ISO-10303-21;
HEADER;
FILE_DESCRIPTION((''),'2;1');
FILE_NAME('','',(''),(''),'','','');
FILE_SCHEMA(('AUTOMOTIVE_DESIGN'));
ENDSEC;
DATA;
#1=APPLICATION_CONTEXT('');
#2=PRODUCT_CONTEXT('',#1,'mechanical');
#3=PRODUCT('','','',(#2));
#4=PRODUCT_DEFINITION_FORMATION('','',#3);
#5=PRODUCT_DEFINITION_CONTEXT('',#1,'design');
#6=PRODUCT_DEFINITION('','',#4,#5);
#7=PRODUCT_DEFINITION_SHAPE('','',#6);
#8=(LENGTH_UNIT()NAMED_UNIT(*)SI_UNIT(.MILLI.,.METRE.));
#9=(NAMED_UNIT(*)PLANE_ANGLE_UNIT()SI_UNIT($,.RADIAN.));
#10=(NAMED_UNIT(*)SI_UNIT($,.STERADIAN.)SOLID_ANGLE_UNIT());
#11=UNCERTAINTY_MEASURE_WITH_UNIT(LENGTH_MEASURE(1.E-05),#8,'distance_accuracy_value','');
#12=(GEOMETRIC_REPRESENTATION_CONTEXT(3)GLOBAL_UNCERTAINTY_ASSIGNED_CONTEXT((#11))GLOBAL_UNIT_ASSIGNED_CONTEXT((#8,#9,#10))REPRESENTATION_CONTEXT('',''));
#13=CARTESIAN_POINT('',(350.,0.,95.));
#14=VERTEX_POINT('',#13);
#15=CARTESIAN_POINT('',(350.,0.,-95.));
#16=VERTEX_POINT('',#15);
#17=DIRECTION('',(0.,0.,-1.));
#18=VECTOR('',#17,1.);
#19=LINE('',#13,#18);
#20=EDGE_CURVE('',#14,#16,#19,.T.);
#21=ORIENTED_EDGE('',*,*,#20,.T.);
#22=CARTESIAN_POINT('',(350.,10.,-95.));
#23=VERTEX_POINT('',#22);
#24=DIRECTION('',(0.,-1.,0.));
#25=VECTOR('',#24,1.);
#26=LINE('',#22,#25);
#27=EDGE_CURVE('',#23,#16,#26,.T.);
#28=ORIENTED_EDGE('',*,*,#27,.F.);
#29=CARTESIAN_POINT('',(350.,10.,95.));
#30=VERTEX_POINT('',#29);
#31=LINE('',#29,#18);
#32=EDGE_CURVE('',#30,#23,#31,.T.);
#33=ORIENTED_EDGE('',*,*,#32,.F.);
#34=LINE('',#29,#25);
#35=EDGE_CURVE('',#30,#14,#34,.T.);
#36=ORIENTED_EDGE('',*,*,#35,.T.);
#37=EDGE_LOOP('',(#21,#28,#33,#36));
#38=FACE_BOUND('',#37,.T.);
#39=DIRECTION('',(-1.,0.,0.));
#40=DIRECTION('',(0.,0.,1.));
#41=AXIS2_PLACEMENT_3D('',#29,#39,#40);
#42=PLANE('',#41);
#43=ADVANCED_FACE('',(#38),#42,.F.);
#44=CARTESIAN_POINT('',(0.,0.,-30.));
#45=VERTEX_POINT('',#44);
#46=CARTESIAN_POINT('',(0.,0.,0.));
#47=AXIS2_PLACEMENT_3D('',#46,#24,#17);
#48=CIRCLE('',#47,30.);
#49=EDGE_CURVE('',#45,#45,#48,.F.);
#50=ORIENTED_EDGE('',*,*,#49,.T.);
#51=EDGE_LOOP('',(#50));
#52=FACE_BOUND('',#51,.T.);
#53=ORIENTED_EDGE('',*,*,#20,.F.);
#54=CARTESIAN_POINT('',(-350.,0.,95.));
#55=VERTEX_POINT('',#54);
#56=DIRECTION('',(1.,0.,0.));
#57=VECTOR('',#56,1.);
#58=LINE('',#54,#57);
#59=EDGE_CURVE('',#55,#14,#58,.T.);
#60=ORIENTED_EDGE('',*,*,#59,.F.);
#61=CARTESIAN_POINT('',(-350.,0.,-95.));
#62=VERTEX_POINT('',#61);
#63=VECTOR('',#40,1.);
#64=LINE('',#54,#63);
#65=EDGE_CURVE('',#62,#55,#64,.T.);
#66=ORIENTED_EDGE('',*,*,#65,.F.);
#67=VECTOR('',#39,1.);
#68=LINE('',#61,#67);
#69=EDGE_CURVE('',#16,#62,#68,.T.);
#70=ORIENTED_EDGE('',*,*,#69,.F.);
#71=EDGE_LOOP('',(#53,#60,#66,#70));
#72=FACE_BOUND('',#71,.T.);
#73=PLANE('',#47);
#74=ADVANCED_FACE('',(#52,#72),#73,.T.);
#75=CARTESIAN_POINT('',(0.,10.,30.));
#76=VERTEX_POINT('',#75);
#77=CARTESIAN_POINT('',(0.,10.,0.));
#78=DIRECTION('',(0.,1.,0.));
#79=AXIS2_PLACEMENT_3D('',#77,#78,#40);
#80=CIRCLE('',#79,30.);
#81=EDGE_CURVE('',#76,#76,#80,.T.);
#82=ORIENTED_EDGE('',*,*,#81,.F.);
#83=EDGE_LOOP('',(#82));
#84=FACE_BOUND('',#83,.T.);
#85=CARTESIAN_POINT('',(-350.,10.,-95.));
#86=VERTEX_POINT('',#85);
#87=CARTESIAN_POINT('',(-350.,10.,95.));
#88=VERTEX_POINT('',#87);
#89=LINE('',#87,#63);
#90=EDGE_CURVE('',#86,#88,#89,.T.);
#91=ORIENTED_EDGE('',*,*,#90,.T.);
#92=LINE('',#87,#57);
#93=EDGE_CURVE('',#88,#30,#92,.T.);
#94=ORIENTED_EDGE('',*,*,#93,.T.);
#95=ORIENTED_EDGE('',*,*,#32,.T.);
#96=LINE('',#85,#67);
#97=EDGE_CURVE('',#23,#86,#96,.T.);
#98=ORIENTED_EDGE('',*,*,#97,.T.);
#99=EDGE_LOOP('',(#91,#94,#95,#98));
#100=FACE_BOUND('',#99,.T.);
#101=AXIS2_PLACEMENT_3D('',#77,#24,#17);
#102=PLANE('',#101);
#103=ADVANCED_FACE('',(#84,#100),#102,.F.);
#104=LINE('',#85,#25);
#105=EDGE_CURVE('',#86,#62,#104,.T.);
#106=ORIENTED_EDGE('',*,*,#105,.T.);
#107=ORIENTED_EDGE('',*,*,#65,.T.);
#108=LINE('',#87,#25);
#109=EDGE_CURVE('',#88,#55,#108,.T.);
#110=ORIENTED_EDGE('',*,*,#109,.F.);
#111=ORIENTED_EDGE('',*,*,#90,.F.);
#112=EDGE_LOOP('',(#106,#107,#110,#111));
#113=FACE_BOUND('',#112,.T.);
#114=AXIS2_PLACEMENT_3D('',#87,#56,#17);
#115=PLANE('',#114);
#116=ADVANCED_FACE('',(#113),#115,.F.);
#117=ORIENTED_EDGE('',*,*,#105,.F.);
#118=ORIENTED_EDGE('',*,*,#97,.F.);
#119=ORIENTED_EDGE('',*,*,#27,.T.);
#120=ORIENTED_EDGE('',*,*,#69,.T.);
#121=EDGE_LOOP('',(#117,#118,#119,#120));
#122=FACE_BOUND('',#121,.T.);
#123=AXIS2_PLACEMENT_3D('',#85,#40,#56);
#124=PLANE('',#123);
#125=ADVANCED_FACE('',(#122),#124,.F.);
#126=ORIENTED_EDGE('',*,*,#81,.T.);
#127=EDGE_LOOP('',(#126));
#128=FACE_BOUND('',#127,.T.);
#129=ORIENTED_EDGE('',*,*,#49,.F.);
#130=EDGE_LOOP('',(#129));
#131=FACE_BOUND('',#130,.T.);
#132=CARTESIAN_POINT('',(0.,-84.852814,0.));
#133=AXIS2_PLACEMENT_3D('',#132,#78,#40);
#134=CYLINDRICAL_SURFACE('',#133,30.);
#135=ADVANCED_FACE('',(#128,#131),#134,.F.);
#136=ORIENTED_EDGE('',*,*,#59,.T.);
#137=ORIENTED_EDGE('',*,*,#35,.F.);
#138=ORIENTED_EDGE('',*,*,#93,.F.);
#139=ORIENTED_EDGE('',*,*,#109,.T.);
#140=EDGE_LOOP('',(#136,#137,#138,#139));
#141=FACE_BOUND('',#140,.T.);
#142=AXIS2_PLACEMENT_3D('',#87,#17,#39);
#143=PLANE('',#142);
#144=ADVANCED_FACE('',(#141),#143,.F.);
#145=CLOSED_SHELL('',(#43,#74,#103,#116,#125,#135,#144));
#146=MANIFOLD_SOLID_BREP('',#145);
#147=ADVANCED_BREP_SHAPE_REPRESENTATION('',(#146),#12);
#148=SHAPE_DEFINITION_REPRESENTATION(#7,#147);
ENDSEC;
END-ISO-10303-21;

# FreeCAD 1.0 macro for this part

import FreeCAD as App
import Part
import Sketcher

V = App.Vector


def add_polygon(sketch, points):
    """Adds a closed chain of lines whose ends are joined by coincident constraints."""
    first, n = sketch.GeometryCount, len(points)
    for a, b in zip(points, points[1:] + points[:1]):
        sketch.addGeometry(Part.LineSegment(App.Vector(*a, 0), App.Vector(*b, 0)), False)
    for i in range(n):
        sketch.addConstraint(Sketcher.Constraint("Coincident", first + i, 2, first + (i + 1) % n, 1))

doc = App.newDocument("Part")
body = doc.addObject("PartDesign::Body", "Body")

# Sketch on XZ plane
sketch1 = body.newObject("Sketcher::SketchObject", "Sketch")
sketch1.AttachmentSupport = (doc.getObject("XZ_Plane"), [""])
sketch1.MapMode = "FlatFace"
add_polygon(sketch1, [(-350, -95), (-350, 95), (350, 95), (350, -95)])  # lines 0-3
sketch1.addConstraint([
    Sketcher.Constraint("Vertical", 0),
    Sketcher.Constraint("Horizontal", 1),
    Sketcher.Constraint("Vertical", 2),
    Sketcher.Constraint("Horizontal", 3),
    Sketcher.Constraint("Symmetric", 0, 2, 2, 2, -1, 1),
    Sketcher.Constraint("DistanceX", 1, 1, 1, 2, 700.0),
    Sketcher.Constraint("DistanceY", 0, 1, 0, 2, 190.0),
])
pad1 = body.newObject("PartDesign::Pad", "Pad")
pad1.Profile = sketch1
pad1.Length = 10
pad1.Reversed = True

# Sketch on XZ plane
sketch2 = body.newObject("Sketcher::SketchObject", "Sketch001")
sketch2.AttachmentSupport = (doc.getObject("XZ_Plane"), [""])
sketch2.MapMode = "FlatFace"
sketch2.AttachmentOffset = App.Placement(V(0, 0, -10), App.Rotation())
sketch2.addGeometry(Part.Circle(V(0, 0, 0), V(0, 0, 1), 30), False)
sketch2.addConstraint([
    Sketcher.Constraint("Coincident", 0, 3, -1, 1),
    Sketcher.Constraint("Diameter", 0, 60.0),
])
pocket1 = body.newObject("PartDesign::Pocket", "Pocket")
pocket1.Profile = sketch2
pocket1.Length = 10
pocket1.Reversed = True

doc.recompute()
